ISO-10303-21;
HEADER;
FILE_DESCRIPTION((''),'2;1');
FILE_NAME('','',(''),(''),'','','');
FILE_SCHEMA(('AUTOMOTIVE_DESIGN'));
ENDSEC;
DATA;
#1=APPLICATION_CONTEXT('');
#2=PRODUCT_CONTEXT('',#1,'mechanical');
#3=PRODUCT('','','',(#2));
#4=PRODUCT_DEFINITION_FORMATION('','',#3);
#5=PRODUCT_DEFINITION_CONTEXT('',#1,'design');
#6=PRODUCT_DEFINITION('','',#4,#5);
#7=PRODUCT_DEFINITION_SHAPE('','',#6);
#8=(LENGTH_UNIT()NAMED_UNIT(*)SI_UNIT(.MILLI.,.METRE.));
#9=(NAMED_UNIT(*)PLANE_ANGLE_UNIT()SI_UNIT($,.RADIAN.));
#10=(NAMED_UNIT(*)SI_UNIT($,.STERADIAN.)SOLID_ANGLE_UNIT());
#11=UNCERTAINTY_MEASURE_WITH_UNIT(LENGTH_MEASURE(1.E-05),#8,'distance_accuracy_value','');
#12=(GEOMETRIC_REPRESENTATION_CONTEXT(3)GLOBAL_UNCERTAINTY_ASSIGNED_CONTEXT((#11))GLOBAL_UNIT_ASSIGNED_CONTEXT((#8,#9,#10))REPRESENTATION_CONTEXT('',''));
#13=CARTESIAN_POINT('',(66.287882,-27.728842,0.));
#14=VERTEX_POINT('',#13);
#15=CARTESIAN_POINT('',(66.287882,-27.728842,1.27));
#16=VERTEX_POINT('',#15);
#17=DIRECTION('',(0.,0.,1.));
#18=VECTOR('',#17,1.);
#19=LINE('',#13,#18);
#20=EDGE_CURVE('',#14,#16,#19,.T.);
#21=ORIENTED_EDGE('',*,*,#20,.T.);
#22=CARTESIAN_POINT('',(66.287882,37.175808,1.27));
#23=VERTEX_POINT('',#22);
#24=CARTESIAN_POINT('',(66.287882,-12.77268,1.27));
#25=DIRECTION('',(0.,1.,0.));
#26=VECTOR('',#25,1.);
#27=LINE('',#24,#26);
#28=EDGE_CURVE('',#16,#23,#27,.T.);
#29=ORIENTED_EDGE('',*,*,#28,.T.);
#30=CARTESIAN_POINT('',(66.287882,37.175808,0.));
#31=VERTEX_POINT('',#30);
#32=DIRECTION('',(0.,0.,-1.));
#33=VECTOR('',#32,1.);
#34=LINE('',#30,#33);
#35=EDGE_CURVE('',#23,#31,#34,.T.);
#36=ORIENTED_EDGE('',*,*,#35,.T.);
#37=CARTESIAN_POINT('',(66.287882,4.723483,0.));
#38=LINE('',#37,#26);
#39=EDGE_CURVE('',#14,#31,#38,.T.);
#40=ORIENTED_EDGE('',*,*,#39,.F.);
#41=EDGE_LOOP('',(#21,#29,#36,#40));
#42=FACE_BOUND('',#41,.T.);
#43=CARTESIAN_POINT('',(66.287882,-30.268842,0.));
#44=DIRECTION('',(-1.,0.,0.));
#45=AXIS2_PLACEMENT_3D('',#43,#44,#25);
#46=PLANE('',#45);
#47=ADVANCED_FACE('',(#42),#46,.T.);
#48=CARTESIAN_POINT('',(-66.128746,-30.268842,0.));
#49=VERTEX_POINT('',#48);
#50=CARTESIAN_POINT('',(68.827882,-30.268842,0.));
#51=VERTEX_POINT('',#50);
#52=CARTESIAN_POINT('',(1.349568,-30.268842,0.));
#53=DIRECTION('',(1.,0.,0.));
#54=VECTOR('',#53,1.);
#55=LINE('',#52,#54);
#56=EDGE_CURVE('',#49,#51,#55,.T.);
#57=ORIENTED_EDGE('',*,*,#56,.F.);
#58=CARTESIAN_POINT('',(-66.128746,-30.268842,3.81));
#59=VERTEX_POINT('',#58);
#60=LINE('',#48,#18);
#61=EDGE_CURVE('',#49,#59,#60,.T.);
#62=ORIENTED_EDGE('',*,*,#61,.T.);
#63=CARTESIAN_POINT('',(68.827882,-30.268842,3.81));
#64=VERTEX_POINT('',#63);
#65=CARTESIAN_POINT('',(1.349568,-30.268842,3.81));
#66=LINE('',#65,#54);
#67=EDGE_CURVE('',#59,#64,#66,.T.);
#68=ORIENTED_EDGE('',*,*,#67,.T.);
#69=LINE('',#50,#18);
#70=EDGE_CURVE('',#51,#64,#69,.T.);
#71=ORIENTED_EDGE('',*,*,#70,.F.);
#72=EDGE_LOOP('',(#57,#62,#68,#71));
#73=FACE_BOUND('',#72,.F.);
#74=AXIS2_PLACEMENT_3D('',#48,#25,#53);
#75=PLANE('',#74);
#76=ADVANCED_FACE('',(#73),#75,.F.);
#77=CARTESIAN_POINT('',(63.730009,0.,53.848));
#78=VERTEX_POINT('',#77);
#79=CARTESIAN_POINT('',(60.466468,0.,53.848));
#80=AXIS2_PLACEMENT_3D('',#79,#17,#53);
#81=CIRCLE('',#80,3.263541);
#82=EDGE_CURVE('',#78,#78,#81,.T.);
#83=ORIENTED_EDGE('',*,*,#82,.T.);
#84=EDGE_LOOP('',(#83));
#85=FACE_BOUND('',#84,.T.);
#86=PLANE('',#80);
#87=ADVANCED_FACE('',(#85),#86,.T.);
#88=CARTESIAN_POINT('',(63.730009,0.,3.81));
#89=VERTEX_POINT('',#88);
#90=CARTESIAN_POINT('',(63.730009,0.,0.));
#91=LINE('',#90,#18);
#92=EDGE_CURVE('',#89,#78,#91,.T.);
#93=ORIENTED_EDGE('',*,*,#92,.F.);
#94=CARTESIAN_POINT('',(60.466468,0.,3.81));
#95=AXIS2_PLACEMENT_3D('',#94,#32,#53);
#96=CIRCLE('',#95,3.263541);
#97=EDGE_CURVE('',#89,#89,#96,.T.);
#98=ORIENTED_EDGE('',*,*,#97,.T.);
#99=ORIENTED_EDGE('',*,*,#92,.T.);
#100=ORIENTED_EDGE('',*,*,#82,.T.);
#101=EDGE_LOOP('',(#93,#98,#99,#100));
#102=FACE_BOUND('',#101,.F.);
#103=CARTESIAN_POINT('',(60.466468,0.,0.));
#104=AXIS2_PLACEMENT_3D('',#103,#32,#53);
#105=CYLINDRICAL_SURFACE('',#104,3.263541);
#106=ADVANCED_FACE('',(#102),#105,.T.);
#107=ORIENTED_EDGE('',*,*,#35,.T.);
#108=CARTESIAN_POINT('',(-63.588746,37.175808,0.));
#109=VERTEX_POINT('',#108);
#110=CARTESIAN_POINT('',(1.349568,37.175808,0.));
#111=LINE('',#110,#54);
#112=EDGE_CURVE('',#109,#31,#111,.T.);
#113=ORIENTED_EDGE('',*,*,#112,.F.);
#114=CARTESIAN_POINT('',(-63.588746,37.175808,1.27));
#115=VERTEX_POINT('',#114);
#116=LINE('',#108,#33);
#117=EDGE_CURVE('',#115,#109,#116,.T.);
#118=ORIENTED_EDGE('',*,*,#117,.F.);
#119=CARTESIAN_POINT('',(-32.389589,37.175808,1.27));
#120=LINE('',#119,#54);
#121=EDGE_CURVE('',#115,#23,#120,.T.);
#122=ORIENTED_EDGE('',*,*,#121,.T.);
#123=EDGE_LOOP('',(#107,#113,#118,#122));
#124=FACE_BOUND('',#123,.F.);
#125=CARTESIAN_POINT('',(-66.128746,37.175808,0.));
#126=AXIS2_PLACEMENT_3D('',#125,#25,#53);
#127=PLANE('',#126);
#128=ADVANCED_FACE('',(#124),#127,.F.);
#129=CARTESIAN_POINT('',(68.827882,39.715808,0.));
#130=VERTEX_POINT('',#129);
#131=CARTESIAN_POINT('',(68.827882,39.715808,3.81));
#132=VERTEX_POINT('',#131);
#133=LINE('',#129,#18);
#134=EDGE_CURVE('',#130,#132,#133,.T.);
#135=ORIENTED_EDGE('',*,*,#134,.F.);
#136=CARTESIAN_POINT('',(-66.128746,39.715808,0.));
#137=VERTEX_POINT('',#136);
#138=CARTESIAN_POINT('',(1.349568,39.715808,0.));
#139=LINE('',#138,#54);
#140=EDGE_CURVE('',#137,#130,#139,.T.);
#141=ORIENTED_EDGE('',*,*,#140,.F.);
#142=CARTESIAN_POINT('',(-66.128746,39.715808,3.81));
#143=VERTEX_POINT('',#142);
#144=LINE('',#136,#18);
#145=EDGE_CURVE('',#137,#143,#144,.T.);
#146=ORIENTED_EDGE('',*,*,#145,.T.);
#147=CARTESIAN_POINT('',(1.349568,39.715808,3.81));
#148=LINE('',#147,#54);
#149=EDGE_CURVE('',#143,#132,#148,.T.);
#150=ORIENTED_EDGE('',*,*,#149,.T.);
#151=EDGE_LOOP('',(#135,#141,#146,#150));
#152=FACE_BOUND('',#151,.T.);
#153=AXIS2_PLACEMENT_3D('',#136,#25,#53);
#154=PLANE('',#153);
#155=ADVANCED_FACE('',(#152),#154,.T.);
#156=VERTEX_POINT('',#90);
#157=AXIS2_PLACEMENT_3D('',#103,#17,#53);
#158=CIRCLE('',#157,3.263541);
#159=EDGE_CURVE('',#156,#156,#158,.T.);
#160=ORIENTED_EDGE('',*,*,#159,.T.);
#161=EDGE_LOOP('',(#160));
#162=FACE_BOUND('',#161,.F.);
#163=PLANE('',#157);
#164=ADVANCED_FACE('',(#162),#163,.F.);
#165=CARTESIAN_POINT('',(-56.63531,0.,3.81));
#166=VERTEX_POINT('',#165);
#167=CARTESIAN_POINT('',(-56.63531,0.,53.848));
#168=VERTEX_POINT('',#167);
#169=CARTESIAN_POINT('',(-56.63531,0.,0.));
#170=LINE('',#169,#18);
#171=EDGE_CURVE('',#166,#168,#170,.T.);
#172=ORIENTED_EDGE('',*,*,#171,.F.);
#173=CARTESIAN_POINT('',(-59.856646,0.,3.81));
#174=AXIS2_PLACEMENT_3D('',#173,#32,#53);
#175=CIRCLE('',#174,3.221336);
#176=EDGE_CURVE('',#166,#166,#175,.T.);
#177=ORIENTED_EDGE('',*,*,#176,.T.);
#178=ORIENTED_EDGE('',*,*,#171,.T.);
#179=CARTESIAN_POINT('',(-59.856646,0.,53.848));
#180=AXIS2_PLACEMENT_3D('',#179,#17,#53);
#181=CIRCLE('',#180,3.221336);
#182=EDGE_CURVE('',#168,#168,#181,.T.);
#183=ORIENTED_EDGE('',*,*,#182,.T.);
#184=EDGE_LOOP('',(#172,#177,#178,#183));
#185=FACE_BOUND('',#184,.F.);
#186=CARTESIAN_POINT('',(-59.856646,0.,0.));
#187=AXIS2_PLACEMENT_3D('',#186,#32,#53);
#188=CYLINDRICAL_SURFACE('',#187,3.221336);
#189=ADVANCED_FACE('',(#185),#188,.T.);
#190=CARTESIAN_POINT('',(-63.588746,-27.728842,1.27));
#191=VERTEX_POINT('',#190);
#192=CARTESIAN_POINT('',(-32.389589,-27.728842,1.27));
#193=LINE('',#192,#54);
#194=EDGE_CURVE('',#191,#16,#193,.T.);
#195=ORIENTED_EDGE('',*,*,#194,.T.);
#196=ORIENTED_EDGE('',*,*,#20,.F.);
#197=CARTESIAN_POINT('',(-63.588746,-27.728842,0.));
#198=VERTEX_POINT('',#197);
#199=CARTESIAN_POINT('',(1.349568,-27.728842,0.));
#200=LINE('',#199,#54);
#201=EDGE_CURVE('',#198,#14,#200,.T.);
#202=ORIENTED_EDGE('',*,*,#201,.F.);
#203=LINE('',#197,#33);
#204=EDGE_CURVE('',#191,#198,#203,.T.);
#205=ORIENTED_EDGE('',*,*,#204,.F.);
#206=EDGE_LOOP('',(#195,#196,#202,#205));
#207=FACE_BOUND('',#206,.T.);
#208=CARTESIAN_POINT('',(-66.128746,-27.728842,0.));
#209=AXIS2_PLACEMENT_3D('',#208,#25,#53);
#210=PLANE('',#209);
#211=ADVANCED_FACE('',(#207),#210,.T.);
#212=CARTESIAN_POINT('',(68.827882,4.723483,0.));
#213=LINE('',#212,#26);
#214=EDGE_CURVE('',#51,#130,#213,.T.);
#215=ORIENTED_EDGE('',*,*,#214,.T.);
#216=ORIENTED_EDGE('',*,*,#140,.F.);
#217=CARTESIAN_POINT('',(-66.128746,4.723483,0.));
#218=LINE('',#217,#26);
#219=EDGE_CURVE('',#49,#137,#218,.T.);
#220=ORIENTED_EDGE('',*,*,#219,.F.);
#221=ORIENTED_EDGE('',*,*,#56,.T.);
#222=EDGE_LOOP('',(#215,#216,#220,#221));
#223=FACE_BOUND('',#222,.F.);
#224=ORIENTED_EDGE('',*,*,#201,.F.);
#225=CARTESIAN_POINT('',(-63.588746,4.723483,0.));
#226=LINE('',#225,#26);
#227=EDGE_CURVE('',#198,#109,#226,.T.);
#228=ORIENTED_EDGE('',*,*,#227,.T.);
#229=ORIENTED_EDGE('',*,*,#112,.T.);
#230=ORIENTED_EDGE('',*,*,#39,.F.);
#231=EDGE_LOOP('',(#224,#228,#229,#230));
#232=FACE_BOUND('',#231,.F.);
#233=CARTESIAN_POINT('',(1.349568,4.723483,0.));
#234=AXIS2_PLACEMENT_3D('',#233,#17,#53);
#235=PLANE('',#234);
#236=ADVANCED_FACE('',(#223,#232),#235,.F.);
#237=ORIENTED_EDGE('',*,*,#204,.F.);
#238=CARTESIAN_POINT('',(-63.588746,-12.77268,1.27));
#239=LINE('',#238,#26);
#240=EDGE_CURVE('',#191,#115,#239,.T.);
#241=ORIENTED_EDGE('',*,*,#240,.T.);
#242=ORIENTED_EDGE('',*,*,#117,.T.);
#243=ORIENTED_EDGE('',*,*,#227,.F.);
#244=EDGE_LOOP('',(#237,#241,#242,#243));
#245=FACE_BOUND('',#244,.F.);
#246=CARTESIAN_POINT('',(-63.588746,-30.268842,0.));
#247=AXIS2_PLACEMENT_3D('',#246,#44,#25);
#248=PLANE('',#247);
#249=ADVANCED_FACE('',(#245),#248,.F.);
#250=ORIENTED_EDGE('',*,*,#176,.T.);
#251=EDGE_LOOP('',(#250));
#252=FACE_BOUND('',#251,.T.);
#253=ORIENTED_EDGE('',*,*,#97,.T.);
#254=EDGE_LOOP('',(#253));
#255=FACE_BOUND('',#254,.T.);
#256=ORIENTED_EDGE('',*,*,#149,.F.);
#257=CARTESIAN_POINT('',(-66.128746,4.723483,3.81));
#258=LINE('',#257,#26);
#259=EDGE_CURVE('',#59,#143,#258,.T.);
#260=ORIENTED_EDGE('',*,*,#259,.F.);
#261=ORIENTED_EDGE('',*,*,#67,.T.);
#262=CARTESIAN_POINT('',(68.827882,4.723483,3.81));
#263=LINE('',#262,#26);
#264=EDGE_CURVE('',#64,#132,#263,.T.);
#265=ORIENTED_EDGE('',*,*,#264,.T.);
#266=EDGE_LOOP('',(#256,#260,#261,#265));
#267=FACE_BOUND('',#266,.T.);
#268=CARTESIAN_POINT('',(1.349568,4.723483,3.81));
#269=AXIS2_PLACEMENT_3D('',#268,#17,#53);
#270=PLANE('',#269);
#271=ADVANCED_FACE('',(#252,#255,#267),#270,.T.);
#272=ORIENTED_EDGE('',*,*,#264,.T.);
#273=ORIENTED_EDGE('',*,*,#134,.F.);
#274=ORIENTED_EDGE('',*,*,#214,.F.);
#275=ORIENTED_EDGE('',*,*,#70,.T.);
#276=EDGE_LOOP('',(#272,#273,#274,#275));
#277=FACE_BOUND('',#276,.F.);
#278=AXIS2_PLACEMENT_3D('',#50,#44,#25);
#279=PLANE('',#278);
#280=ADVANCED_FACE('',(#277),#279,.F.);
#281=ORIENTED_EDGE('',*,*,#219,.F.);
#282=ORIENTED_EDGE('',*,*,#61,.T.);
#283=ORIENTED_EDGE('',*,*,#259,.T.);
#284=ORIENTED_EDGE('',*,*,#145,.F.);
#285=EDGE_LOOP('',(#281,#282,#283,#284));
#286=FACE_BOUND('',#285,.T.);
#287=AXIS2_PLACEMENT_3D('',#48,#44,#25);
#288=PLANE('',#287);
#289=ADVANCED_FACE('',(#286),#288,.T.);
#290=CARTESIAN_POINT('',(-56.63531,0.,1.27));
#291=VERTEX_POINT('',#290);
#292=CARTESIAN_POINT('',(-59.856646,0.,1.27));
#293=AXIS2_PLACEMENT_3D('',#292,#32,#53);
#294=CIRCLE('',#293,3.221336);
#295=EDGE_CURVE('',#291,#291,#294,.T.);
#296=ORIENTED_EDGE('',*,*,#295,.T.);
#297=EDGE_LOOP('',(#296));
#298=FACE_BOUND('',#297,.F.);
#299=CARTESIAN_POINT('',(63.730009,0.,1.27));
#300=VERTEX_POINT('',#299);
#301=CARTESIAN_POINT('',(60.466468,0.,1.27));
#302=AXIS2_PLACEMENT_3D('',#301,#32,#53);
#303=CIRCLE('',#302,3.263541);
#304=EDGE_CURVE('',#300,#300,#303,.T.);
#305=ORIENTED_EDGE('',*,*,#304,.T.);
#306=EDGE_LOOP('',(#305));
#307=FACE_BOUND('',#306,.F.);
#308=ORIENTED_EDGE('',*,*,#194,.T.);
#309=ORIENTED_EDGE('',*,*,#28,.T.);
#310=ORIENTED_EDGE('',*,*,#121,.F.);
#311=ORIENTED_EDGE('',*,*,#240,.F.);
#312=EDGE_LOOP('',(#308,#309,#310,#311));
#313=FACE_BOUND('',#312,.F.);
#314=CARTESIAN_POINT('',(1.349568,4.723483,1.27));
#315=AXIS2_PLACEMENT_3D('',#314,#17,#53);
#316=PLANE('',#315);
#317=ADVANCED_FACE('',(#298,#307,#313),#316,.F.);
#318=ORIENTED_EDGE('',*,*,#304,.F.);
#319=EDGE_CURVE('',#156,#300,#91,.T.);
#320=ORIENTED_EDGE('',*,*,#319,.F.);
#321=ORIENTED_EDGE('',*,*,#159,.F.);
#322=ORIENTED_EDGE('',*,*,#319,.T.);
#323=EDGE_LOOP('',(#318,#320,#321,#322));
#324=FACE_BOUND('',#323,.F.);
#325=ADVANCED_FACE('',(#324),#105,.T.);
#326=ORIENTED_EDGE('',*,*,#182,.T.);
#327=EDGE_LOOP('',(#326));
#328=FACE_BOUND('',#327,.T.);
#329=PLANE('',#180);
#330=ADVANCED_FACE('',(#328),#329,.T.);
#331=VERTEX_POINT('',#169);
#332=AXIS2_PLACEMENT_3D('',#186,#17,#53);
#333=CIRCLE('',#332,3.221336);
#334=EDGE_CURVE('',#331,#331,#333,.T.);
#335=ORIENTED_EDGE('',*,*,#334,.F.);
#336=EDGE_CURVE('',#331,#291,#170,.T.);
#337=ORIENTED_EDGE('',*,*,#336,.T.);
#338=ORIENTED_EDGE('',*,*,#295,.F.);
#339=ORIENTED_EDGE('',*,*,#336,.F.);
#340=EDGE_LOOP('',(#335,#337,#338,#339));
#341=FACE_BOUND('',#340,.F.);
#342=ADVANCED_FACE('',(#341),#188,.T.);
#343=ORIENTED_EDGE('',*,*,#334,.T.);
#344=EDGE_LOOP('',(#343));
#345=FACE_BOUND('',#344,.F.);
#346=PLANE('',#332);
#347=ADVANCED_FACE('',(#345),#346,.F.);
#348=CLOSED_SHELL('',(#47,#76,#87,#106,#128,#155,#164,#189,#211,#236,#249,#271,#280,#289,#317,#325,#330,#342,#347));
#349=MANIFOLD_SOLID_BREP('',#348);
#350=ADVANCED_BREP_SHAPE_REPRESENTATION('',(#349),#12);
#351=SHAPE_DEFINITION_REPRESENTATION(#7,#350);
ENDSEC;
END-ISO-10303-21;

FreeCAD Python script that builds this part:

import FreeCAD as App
import Part
import Sketcher
Q = App.Units.Quantity


def faces_at(feature, points):
    """Names of the faces that lie closest to the given points."""
    faces = feature.Shape.Faces
    near = lambda p: min(range(len(faces)), key=lambda i: faces[i].distToShape(Part.Vertex(*p))[0])
    return sorted({f"Face{near(p) + 1}" for p in points})

doc = App.newDocument("Part")
body = doc.addObject("PartDesign::Body", "Body")

# Sketch on XY plane
sketch1 = body.newObject("Sketcher::SketchObject", "Sketch")
sketch1.AttachmentSupport = (doc.getObject("XY_Plane"), [""])
sketch1.MapMode = "FlatFace"
sketch1.addGeometry(Part.LineSegment(App.Vector(-66, 40, 0), App.Vector(-66, -30, 0)), False)
sketch1.addGeometry(Part.LineSegment(App.Vector(-66, -30, 0), App.Vector(69, -30, 0)), False)
sketch1.addGeometry(Part.LineSegment(App.Vector(69, -30, 0), App.Vector(69, 40, 0)), False)
sketch1.addGeometry(Part.LineSegment(App.Vector(69, 40, 0), App.Vector(-66, 40, 0)), False)
sketch1.addConstraint(Sketcher.Constraint("Coincident", 0, 2, 1, 1))
sketch1.addConstraint(Sketcher.Constraint("Coincident", 1, 2, 2, 1))
sketch1.addConstraint(Sketcher.Constraint("Coincident", 2, 2, 3, 1))
sketch1.addConstraint(Sketcher.Constraint("Coincident", 3, 2, 0, 1))
sketch1.addConstraint(Sketcher.Constraint("Vertical", 0))
sketch1.addConstraint(Sketcher.Constraint("Horizontal", 1))
sketch1.addConstraint(Sketcher.Constraint("Vertical", 2))
sketch1.addConstraint(Sketcher.Constraint("Horizontal", 3))
sketch1.addConstraint(Sketcher.Constraint("DistanceX", 1, 1, 1, 2, 134.956628))
sketch1.addConstraint(Sketcher.Constraint("DistanceY", 0, 2, 0, 1, 69.98465))
sketch1.addConstraint(Sketcher.Constraint("DistanceY", 0, 2, -1, 1, 30.268842))
sketch1.addConstraint(Sketcher.Constraint("DistanceX", 0, 2, -1, 1, 66.128746))
pad1 = body.newObject("PartDesign::Pad", "Pad")
pad1.Profile = sketch1
pad1.Length = Q("0.15 in")
doc.recompute()

thickness = body.newObject("PartDesign::Thickness", "Thickness")
thickness.Base = (pad1, faces_at(pad1, [(1.35, 4.723, 0)]))
thickness.Value = Q("0.1 in")
thickness.Reversed = True
thickness.Join = "Arc"

# Sketch on XY plane
sketch2 = body.newObject("Sketcher::SketchObject", "Sketch001")
sketch2.AttachmentSupport = (doc.getObject("XY_Plane"), [""])
sketch2.MapMode = "FlatFace"
sketch2.addGeometry(Part.Circle(App.Vector(-59.9, 0, 0), App.Vector(0, 0, 1), 3.2), False)
sketch2.addGeometry(Part.Circle(App.Vector(60.5, 0, 0), App.Vector(0, 0, 1), 3.3), False)
sketch2.addConstraint(Sketcher.Constraint("PointOnObject", 0, 3, -1))
sketch2.addConstraint(Sketcher.Constraint("PointOnObject", 1, 3, -1))
sketch2.addConstraint(Sketcher.Constraint("Diameter", 0, 6.442672))
sketch2.addConstraint(Sketcher.Constraint("Diameter", 1, 6.527082))
sketch2.addConstraint(Sketcher.Constraint("DistanceX", 0, 3, -1, 1, 59.856646))
sketch2.addConstraint(Sketcher.Constraint("DistanceX", -1, 1, 1, 3, 60.466468))
pad2 = body.newObject("PartDesign::Pad", "Pad001")
pad2.Profile = sketch2
pad2.Length = Q("2.12 in")

doc.recompute()
